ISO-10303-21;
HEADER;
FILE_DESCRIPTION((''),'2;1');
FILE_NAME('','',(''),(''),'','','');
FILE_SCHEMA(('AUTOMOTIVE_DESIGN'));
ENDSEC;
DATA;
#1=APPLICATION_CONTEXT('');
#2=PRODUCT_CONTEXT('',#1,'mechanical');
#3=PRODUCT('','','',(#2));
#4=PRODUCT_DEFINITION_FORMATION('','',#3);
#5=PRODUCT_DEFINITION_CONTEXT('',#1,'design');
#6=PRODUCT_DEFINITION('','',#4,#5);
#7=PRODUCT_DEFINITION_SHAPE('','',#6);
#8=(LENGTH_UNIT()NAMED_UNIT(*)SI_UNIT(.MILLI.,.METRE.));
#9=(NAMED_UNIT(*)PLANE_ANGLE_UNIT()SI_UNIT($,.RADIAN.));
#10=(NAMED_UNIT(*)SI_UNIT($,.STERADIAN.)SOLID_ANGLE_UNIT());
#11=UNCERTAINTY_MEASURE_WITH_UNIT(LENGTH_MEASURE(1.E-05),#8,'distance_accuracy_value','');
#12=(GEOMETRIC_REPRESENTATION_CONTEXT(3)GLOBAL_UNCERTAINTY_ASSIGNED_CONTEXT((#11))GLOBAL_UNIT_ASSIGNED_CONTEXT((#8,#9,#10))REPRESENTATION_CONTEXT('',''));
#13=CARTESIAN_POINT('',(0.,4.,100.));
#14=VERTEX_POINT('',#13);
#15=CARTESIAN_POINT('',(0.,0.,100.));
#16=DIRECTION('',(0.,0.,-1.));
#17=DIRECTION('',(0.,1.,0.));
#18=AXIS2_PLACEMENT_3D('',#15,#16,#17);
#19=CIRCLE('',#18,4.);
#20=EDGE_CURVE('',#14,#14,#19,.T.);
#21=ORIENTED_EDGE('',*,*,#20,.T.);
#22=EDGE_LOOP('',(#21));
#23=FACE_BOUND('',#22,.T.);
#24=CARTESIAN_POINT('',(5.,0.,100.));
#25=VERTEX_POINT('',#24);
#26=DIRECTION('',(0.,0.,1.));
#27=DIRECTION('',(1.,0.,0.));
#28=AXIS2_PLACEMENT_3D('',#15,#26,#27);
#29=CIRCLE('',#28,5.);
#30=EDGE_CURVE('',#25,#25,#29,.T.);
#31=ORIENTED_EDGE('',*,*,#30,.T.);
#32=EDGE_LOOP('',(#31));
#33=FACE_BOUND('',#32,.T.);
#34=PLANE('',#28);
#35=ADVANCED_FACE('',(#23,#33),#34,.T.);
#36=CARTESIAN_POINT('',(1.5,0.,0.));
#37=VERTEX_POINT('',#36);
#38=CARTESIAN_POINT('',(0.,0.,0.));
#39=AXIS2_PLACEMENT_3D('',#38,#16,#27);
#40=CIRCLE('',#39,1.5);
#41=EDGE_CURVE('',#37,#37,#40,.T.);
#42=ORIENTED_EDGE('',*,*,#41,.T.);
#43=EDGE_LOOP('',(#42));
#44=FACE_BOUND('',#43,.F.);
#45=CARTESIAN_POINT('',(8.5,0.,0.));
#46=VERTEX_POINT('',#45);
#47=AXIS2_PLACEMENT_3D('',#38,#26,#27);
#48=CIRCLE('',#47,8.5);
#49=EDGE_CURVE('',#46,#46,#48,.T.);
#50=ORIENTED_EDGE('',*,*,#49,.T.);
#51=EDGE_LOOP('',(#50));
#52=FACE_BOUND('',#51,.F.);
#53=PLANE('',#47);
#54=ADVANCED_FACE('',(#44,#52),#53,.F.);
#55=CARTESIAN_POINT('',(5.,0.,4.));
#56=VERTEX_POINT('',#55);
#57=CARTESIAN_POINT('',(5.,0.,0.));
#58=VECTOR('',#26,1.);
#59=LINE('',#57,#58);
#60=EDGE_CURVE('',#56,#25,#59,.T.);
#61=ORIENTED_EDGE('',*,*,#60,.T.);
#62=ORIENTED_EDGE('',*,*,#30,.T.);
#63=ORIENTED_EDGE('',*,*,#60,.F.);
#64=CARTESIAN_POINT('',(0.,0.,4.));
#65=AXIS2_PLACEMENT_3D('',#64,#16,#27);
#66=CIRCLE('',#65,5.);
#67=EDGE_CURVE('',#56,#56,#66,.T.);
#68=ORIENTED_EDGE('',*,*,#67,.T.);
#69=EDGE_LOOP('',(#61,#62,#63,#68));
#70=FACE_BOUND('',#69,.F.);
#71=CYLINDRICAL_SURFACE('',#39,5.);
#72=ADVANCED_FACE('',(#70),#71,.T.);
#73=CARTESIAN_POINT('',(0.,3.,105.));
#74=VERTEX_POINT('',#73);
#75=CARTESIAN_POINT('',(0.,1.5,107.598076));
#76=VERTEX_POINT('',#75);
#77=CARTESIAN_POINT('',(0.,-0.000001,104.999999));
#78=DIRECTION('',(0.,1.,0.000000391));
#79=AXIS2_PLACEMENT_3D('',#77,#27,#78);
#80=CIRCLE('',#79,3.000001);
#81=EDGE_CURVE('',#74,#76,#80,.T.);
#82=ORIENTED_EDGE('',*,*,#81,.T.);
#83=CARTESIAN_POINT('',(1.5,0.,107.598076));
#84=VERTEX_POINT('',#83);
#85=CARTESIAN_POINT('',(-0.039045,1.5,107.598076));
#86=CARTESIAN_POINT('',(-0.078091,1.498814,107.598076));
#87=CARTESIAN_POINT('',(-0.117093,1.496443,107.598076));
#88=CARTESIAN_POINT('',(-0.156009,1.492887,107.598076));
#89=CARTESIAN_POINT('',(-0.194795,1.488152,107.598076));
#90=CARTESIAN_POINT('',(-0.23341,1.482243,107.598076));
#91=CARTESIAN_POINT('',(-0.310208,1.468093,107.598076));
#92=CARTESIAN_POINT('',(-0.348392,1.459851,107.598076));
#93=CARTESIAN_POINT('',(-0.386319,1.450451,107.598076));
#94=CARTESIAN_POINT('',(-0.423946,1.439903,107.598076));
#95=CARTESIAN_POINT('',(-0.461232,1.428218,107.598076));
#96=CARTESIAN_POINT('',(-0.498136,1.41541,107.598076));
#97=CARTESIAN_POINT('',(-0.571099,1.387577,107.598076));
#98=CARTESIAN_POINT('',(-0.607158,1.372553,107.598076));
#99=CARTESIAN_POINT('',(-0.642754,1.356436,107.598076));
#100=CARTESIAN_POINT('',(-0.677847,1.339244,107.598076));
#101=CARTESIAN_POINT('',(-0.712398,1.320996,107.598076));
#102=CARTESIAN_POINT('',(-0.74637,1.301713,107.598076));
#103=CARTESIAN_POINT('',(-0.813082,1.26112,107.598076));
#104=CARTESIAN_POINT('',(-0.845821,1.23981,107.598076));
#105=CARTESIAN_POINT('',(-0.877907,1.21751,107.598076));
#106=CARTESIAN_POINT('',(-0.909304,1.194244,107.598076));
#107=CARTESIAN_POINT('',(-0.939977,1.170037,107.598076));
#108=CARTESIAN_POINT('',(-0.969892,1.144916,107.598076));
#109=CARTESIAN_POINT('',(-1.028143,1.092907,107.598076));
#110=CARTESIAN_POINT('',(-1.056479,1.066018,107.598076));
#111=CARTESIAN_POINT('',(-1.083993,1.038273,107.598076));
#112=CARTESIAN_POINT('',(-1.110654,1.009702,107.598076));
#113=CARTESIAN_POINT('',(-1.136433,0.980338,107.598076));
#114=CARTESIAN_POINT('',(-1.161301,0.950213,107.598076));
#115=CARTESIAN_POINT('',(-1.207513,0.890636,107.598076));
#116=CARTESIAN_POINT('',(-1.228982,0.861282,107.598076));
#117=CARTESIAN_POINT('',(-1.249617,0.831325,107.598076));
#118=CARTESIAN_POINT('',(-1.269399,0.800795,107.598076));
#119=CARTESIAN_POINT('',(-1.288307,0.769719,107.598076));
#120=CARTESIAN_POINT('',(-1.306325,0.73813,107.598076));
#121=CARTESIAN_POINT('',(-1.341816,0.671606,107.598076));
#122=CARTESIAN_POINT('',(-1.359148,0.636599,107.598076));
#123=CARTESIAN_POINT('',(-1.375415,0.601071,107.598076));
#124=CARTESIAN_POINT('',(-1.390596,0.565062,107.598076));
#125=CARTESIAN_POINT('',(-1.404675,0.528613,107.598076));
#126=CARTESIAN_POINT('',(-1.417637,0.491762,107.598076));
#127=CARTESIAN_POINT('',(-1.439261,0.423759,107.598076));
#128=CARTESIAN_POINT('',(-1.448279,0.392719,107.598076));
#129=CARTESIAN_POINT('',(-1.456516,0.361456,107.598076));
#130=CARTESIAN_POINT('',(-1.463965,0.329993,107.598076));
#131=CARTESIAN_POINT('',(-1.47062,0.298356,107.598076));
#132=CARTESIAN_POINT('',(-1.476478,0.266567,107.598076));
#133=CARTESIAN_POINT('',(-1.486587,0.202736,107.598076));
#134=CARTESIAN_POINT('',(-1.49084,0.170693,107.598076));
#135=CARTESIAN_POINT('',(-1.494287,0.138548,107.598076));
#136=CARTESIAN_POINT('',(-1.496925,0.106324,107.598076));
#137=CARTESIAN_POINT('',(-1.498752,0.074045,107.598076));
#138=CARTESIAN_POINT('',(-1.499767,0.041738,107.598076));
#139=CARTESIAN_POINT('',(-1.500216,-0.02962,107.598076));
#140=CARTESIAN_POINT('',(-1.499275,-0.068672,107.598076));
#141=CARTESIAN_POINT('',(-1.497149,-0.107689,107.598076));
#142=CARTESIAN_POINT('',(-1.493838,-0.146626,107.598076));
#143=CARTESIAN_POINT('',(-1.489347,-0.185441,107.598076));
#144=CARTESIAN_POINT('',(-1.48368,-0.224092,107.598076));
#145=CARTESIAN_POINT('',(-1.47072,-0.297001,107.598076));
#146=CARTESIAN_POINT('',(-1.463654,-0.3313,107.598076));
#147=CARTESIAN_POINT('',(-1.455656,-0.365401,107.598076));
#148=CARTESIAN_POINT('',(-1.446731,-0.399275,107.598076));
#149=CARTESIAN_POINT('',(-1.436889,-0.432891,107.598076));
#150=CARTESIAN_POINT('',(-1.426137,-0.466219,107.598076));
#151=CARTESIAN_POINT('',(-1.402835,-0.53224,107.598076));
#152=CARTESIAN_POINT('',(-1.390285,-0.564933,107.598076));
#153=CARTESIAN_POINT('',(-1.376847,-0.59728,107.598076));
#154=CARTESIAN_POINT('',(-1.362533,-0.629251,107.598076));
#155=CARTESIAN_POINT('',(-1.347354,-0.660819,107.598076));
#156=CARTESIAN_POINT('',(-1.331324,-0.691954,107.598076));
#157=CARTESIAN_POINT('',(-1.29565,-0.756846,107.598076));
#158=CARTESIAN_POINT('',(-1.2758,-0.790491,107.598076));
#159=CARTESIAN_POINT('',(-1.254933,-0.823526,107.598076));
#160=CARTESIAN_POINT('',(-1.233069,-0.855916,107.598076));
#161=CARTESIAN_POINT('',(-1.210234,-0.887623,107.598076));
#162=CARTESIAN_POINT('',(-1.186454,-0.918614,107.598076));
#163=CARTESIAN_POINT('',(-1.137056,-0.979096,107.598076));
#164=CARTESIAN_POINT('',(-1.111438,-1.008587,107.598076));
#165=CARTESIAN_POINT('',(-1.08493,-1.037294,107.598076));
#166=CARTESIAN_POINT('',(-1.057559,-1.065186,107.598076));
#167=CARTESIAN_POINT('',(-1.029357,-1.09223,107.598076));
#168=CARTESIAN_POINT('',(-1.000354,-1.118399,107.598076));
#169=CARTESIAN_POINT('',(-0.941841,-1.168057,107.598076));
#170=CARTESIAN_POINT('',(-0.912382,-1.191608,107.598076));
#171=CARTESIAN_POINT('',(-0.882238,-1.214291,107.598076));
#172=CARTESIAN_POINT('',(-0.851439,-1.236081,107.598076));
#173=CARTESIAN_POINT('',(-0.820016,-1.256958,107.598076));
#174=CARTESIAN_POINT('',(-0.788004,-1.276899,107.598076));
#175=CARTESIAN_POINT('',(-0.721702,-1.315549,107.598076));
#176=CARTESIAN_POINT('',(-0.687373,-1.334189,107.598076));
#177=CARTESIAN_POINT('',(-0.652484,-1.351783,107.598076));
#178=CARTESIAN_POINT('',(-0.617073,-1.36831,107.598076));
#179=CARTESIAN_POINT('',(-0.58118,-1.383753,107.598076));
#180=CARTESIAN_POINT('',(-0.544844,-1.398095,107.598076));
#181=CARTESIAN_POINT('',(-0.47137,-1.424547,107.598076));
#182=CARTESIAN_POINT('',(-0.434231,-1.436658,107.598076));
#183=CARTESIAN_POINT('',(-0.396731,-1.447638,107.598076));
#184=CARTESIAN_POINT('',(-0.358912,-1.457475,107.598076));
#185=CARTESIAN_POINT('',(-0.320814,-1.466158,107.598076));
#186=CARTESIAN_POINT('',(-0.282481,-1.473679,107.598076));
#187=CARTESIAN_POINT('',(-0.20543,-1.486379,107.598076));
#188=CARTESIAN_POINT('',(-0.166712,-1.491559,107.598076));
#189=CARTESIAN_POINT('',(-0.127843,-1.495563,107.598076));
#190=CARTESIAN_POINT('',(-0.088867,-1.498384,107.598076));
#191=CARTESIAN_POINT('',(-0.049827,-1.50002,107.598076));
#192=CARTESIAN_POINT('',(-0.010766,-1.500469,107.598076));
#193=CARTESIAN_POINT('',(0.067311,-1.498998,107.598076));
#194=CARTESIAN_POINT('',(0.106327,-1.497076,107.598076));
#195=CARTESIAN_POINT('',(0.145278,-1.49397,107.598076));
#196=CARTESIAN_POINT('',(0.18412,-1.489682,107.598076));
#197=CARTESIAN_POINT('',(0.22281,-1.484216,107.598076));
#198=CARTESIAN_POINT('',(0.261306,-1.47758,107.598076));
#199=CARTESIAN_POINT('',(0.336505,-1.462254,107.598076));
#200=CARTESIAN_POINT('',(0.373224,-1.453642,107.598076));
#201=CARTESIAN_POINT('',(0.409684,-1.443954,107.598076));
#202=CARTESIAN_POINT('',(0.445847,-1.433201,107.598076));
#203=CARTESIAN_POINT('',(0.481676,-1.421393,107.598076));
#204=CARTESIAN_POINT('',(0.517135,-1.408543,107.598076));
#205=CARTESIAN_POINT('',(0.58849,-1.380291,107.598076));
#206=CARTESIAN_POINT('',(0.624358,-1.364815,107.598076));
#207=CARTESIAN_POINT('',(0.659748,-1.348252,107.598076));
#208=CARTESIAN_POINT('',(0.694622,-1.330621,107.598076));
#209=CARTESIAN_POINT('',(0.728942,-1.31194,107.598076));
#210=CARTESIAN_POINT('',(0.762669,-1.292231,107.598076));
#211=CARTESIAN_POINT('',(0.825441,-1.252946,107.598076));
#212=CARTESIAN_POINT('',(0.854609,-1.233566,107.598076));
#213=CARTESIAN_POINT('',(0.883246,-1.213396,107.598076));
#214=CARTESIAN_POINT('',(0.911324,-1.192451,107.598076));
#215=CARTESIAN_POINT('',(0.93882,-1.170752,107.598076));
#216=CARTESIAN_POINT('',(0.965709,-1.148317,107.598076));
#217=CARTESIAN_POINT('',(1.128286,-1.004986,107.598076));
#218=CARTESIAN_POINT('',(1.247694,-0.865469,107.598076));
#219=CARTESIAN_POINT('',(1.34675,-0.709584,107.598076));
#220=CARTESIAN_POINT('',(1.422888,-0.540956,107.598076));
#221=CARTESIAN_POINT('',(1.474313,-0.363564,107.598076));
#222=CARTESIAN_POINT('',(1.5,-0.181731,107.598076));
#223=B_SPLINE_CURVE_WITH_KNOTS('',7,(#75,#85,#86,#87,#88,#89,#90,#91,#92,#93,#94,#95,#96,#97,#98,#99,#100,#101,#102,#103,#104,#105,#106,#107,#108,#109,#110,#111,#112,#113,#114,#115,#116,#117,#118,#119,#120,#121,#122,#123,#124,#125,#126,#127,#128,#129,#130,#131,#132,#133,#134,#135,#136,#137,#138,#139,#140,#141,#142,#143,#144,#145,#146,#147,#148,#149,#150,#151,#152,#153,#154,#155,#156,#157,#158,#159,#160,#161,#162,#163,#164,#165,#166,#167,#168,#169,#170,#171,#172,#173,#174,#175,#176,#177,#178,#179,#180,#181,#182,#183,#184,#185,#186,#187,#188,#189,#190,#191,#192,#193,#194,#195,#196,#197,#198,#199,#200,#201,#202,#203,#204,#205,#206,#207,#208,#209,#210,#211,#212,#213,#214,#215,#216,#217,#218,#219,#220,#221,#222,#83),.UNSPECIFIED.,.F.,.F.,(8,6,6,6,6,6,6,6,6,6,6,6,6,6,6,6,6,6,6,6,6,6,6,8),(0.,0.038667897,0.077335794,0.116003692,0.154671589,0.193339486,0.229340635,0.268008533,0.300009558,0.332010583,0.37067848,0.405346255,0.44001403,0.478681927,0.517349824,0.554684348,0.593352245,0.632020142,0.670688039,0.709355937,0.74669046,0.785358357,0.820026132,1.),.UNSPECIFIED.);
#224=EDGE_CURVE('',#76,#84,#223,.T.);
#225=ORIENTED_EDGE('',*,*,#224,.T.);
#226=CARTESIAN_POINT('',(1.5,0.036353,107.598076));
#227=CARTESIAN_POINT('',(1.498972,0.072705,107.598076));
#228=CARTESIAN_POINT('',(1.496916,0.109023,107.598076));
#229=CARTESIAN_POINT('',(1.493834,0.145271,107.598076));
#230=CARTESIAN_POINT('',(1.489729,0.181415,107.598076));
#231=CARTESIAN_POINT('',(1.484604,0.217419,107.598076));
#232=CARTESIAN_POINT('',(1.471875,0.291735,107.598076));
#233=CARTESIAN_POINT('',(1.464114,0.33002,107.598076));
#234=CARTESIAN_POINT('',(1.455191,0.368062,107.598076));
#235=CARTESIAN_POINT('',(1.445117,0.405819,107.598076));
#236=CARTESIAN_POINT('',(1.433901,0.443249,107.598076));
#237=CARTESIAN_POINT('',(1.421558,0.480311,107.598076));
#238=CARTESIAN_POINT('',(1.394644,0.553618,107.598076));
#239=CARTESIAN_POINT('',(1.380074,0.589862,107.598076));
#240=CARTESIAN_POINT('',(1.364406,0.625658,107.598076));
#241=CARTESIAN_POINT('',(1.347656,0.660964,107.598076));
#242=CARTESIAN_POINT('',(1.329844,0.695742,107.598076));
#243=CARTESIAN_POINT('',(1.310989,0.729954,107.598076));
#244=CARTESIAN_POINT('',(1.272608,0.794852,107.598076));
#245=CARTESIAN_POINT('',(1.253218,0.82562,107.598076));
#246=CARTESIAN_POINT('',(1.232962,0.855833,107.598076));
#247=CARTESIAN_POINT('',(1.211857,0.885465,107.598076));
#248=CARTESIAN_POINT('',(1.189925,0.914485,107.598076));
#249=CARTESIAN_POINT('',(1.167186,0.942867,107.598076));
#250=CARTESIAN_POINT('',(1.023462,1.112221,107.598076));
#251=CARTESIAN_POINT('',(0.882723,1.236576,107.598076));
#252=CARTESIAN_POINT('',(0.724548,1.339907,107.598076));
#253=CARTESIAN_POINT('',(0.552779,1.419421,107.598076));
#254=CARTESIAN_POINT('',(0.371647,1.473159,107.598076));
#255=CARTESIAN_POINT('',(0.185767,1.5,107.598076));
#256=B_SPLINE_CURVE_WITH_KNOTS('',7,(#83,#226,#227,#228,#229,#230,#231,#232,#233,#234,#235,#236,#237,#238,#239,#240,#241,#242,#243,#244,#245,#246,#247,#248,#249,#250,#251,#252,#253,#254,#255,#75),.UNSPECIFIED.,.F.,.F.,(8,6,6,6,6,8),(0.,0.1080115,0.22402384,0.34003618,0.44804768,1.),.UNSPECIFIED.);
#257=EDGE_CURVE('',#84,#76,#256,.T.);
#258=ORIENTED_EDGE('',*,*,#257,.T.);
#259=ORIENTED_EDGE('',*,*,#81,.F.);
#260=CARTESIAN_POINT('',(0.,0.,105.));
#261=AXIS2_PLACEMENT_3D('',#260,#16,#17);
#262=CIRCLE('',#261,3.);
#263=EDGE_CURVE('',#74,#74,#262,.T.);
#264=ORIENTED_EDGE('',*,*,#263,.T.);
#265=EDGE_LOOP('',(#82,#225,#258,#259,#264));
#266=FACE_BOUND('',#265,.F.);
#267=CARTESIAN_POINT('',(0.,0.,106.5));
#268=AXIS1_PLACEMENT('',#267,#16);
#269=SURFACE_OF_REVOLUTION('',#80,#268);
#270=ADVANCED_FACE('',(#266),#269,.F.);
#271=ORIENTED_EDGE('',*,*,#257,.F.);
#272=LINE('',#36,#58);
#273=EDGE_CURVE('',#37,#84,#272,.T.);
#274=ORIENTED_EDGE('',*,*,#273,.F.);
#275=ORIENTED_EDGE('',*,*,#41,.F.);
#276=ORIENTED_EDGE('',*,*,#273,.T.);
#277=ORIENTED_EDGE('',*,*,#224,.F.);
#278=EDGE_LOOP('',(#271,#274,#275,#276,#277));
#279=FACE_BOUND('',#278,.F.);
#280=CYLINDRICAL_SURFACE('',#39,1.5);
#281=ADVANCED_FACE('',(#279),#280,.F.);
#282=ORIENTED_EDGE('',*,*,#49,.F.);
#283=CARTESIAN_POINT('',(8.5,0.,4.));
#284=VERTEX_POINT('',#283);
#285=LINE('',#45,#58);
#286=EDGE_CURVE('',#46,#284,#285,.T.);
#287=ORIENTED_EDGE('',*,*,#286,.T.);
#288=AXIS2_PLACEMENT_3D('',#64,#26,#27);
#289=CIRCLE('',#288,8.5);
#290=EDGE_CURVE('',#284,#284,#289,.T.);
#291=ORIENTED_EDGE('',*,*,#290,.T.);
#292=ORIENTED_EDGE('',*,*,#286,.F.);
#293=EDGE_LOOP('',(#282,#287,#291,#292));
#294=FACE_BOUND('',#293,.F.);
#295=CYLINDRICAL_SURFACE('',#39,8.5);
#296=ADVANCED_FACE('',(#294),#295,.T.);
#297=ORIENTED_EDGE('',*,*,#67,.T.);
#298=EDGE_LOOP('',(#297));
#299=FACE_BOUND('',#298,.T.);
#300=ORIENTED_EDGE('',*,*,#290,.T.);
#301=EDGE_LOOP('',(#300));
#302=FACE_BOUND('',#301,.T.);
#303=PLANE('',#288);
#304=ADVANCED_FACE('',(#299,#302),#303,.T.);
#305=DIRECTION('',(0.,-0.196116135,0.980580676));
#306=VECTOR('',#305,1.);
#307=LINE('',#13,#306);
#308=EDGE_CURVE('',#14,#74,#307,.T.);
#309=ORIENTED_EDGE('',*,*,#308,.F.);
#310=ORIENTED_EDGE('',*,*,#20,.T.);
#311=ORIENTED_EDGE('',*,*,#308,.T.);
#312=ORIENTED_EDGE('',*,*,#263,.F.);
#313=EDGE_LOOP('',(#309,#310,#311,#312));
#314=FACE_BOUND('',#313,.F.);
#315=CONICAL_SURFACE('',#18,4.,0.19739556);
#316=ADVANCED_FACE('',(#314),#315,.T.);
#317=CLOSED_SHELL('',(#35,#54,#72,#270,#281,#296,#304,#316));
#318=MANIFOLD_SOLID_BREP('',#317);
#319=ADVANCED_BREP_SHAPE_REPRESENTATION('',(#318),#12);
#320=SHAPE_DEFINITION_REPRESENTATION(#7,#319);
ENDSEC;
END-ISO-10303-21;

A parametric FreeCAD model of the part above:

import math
import FreeCAD as App
import Part
import Sketcher

V = App.Vector
Q = App.Units.Quantity


def add_polygon(sketch, points):
    """Adds a closed chain of lines whose ends are joined by coincident constraints."""
    first, n = sketch.GeometryCount, len(points)
    for a, b in zip(points, points[1:] + points[:1]):
        sketch.addGeometry(Part.LineSegment(App.Vector(*a, 0), App.Vector(*b, 0)), False)
    for i in range(n):
        sketch.addConstraint(Sketcher.Constraint("Coincident", first + i, 2, first + (i + 1) % n, 1))

doc = App.newDocument("Part")
body = doc.addObject("PartDesign::Body", "Body")

sketch1 = body.newObject("Sketcher::SketchObject", "Sketch")
sketch1.AttachmentSupport = (doc.getObject("XY_Plane"), [""])
sketch1.MapMode = "FlatFace"
sketch1.addGeometry(Part.Circle(V(0, 0, 0), V(0, 0, 1), 8.5), False)
sketch1.addConstraint(Sketcher.Constraint("Coincident", 0, 3, -1, 1))
sketch1.addConstraint(Sketcher.Constraint("Diameter", 0, Q("17 mm")))
pad1 = body.newObject("PartDesign::Pad", "Pad")
pad1.Profile = sketch1
pad1.Length = 4

sketch2 = body.newObject("Sketcher::SketchObject", "Sketch001")
sketch2.AttachmentSupport = (doc.getObject("XY_Plane"), [""])
sketch2.MapMode = "FlatFace"
sketch2.addGeometry(Part.Circle(V(0, 0, 0), V(0, 0, 1), 5), False)
sketch2.addConstraint(Sketcher.Constraint("Coincident", 0, 3, -1, 1))
sketch2.addConstraint(Sketcher.Constraint("Diameter", 0, Q("10 mm")))
pad2 = body.newObject("PartDesign::Pad", "Pad001")
pad2.Profile = sketch2
pad2.Length = 100

sketch3 = body.newObject("Sketcher::SketchObject", "Sketch002")
sketch3.AttachmentSupport = (doc.getObject("YZ_Plane"), [""])
sketch3.MapMode = "FlatFace"
add_polygon(sketch3, [(3, 105), (0, 105), (0, 100), (4, 100)])
sketch3.addConstraint(Sketcher.Constraint("Horizontal", 0))
sketch3.addConstraint(Sketcher.Constraint("Vertical", 1))
sketch3.addConstraint(Sketcher.Constraint("Horizontal", 2))
sketch3.addConstraint(Sketcher.Constraint("PointOnObject", 0, 2, -2))
sketch3.addConstraint(Sketcher.Constraint("DistanceX", 0, 2, 0, 1, Q("3 mm")))
sketch3.addConstraint(Sketcher.Constraint("DistanceX", 2, 1, 2, 2, Q("4 mm")))
sketch3.addConstraint(Sketcher.Constraint("DistanceY", 1, 2, 1, 1, Q("5 mm")))
sketch3.addConstraint(Sketcher.Constraint("DistanceY", -1, 1, 0, 2, Q("105 mm")))
revolution = body.newObject("PartDesign::Revolution", "Revolution")
revolution.Profile = sketch3
revolution.ReferenceAxis = (sketch3, ["V_Axis"])
revolution.Angle = 360

sketch4 = body.newObject("Sketcher::SketchObject", "Sketch003")
sketch4.AttachmentSupport = (doc.getObject("YZ_Plane"), [""])
sketch4.MapMode = "FlatFace"
sketch4.addGeometry(Part.ArcOfCircle(Part.Circle(V(-0.000001, 104.999999, 0), V(0, 0, 1), 3.000001), math.radians(0.000022), math.radians(89.999978)), False)
sketch4.addGeometry(Part.LineSegment(V(0, 108, 0), V(0, 105, 0)), False)
sketch4.addGeometry(Part.LineSegment(V(0, 105, 0), V(3, 105, 0)), False)
sketch4.addConstraint(Sketcher.Constraint("Coincident", 0, 2, 1, 1))
sketch4.addConstraint(Sketcher.Constraint("Coincident", 1, 2, 2, 1))
sketch4.addConstraint(Sketcher.Constraint("Coincident", 2, 2, 0, 1))
sketch4.addConstraint(Sketcher.Constraint("Vertical", 1))
sketch4.addConstraint(Sketcher.Constraint("Horizontal", 2))
sketch4.addConstraint(Sketcher.Constraint("Coincident", 1, 2, 0, 3))
sketch4.addConstraint(Sketcher.Constraint("PointOnObject", 0, 3, -2))
sketch4.addConstraint(Sketcher.Constraint("Radius", 0, Q("3.000001 mm")))
sketch4.addConstraint(Sketcher.Constraint("DistanceY", -1, 1, 0, 3, Q("104.999999 mm")))
revolution2 = body.newObject("PartDesign::Revolution", "Revolution001")
revolution2.Profile = sketch4
revolution2.ReferenceAxis = (sketch4, ["V_Axis"])
revolution2.Angle = 360

sketch5 = body.newObject("Sketcher::SketchObject", "Sketch004")
sketch5.AttachmentSupport = (doc.getObject("XY_Plane"), [""])
sketch5.MapMode = "FlatFace"
sketch5.addGeometry(Part.Circle(V(0, 0, 0), V(0, 0, 1), 1.5), False)
sketch5.addConstraint(Sketcher.Constraint("Coincident", 0, 3, -1, 1))
sketch5.addConstraint(Sketcher.Constraint("Diameter", 0, Q("3 mm")))
pocket1 = body.newObject("PartDesign::Pocket", "Pocket")
pocket1.Profile = sketch5
pocket1.Length = 123.9
pocket1.Reversed = True

doc.recompute()
